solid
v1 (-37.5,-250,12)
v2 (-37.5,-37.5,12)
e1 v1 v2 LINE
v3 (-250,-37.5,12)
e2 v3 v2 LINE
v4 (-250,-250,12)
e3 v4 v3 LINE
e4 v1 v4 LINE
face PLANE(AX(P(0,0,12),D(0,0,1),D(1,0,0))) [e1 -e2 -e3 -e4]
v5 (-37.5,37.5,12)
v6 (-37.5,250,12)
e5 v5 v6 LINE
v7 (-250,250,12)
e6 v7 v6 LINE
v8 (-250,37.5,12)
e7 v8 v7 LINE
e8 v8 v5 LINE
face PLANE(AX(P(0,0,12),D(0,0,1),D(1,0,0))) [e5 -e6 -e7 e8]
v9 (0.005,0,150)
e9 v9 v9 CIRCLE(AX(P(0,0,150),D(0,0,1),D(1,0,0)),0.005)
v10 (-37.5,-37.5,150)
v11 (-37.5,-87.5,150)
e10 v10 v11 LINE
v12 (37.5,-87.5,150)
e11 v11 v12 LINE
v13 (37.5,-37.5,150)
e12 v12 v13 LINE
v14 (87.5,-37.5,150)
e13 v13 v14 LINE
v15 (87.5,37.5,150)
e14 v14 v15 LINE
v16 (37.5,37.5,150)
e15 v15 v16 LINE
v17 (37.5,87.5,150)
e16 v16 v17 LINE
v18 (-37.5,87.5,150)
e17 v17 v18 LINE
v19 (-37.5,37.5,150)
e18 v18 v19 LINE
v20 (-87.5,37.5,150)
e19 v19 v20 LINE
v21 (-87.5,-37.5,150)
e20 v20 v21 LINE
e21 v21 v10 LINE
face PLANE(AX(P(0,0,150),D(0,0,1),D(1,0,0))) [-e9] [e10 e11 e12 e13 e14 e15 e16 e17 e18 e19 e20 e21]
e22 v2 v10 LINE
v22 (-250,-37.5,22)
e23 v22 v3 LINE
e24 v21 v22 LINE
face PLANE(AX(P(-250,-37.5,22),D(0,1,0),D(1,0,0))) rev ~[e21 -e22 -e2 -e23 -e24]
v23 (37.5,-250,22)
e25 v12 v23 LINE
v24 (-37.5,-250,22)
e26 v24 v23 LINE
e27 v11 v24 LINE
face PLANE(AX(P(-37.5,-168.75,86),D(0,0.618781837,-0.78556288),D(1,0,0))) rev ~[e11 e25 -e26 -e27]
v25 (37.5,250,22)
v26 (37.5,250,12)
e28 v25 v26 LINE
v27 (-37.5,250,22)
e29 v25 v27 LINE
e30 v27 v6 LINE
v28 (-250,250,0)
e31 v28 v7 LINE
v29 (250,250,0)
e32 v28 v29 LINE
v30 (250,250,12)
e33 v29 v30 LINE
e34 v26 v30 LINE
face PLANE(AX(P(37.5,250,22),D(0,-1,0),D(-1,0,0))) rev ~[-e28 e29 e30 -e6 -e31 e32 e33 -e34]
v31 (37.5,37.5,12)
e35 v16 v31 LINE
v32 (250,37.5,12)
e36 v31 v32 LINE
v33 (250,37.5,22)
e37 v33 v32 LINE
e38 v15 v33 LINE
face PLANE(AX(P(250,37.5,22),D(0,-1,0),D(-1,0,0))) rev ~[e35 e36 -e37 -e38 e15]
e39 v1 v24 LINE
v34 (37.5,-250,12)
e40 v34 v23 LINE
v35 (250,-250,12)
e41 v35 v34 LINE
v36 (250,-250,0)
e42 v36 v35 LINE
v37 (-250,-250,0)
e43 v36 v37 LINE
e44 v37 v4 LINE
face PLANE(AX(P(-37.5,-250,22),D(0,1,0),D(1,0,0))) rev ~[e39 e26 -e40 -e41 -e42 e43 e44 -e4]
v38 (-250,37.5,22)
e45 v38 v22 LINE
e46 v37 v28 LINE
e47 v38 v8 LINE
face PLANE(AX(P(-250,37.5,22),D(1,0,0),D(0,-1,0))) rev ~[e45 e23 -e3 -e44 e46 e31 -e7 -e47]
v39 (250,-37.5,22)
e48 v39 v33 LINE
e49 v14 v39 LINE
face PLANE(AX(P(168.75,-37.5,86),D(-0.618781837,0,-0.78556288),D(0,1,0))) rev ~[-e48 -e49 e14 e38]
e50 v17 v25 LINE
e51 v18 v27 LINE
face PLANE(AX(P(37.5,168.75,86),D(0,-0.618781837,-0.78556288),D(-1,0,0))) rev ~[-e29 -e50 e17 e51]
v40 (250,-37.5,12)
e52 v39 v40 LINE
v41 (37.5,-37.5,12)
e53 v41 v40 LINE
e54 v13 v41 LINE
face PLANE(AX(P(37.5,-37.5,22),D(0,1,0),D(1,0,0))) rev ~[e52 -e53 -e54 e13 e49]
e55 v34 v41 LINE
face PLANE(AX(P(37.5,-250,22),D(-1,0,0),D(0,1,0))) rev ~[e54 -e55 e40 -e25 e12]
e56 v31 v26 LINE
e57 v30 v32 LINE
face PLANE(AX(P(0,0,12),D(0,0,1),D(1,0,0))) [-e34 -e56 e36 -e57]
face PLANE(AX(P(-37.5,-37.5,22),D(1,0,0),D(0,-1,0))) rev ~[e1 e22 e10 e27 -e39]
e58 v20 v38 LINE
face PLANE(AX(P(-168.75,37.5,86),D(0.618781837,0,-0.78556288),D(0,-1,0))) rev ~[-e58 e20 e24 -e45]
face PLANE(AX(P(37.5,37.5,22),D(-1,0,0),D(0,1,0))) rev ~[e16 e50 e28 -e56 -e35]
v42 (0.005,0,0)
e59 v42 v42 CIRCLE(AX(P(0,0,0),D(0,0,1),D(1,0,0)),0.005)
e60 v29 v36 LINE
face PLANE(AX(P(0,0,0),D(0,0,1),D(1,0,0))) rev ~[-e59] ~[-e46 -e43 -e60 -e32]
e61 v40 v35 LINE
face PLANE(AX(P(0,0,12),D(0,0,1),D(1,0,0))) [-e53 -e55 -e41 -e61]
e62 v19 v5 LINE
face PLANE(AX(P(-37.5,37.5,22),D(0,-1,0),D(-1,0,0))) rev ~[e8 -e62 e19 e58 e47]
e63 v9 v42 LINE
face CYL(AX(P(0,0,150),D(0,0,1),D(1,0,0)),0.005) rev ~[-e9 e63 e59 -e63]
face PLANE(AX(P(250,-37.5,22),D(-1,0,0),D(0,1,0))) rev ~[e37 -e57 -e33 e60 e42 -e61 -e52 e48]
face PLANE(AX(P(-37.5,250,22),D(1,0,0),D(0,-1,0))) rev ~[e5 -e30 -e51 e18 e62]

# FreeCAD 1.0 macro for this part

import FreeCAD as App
import Part
import Sketcher

V = App.Vector


def edges_at(feature, points):
    """Names of the edges that pass closest to the given points."""
    edges = feature.Shape.Edges
    near = lambda p: min(range(len(edges)), key=lambda i: edges[i].distToShape(Part.Vertex(*p))[0])
    return sorted({f"Edge{near(p) + 1}" for p in points})


def add_polygon(sketch, points):
    """Adds a closed chain of lines whose ends are joined by coincident constraints."""
    first, n = sketch.GeometryCount, len(points)
    for a, b in zip(points, points[1:] + points[:1]):
        sketch.addGeometry(Part.LineSegment(App.Vector(*a, 0), App.Vector(*b, 0)), False)
    for i in range(n):
        sketch.addConstraint(Sketcher.Constraint("Coincident", first + i, 2, first + (i + 1) % n, 1))

doc = App.newDocument("Part")
params = doc.addObject("Spreadsheet::Sheet", "Params")
for row, (alias, value) in enumerate([
    ("sketch1_width", "500 mm"),
    ("pad1_length", "12 mm"),
    ("sketch2_width", "75 mm"),
    ("sketch2_width2", "212.5 mm"),
    ("pad2_length", "10 mm"),
    ("sketch3_width", "75 mm"),
    ("sketch3_width2", "212.5 mm"),
    ("pad3_length", "128 mm"),
    ("chamfer_size", "162.5 mm"),
    ("chamfer_size2", "128 mm"),
    ("chamfer2_size", "162.5 mm"),
    ("chamfer2_size2", "128 mm"),
    ("chamfer3_size", "162.5 mm"),
    ("chamfer3_size2", "128 mm"),
    ("chamfer4_size", "162.5 mm"),
    ("chamfer4_size2", "128 mm"),
    ("sketch4_diameter", "0.01 mm"),
], start=1):
    params.set(f"A{row}", alias)
    params.set(f"B{row}", "=" + value)
    params.setAlias(f"B{row}", alias)

body = doc.addObject("PartDesign::Body", "Body")

# Sketch on XY plane
sketch1 = doc.addObject("Sketcher::SketchObject", "Sketch")
body.addObject(sketch1)
sketch1.AttachmentSupport = (doc.XY_Plane, [""])
sketch1.MapMode = "FlatFace"
add_polygon(sketch1, [(250, -250), (250, 250), (-250, 250), (-250, -250)])  # lines 0-3
sketch1.addConstraint(Sketcher.Constraint("Vertical", 0))
sketch1.addConstraint(Sketcher.Constraint("Horizontal", 1))
sketch1.addConstraint(Sketcher.Constraint("Vertical", 2))
sketch1.addConstraint(Sketcher.Constraint("Horizontal", 3))
sketch1.addConstraint(Sketcher.Constraint("Symmetric", 0, 2, 2, 2, -1, 1))
sketch1.addConstraint(Sketcher.Constraint("Equal", 3, 0))
sketch1.addConstraint(Sketcher.Constraint("DistanceX", 1, 2, 1, 1, 500.0))
sketch1.setExpression("Constraints[10]", "Params.sketch1_width")
pad1 = doc.addObject("PartDesign::Pad", "Pad")
body.addObject(pad1)
pad1.Profile = sketch1
pad1.setExpression("Length", "Params.pad1_length")

# Sketch on XY plane
sketch2 = doc.addObject("Sketcher::SketchObject", "Sketch001")
body.addObject(sketch2)
sketch2.AttachmentSupport = (doc.XY_Plane, [""])
sketch2.MapMode = "FlatFace"
sketch2.AttachmentOffset = App.Placement(V(0, 0, 12), App.Rotation())
add_polygon(sketch2, [(38, -38), (250, -38), (250, 38), (38, 38), (38, 250), (-38, 250), (-38, 38), (-250, 38), (-250, -38), (-38, -38), (-38, -250), (38, -250)])  # lines 0-11
sketch2.addConstraint(Sketcher.Constraint("Horizontal", 0))
sketch2.addConstraint(Sketcher.Constraint("Vertical", 1))
sketch2.addConstraint(Sketcher.Constraint("Horizontal", 2))
sketch2.addConstraint(Sketcher.Constraint("Vertical", 3))
sketch2.addConstraint(Sketcher.Constraint("Horizontal", 4))
sketch2.addConstraint(Sketcher.Constraint("Vertical", 5))
sketch2.addConstraint(Sketcher.Constraint("Horizontal", 6))
sketch2.addConstraint(Sketcher.Constraint("Vertical", 7))
sketch2.addConstraint(Sketcher.Constraint("Horizontal", 8))
sketch2.addConstraint(Sketcher.Constraint("Vertical", 9))
sketch2.addConstraint(Sketcher.Constraint("Horizontal", 10))
sketch2.addConstraint(Sketcher.Constraint("Vertical", 11))
sketch2.addConstraint(Sketcher.Constraint("Symmetric", 0, 2, 6, 2, -1, 1))
sketch2.addConstraint(Sketcher.Constraint("Symmetric", 2, 2, 8, 2, -1, 1))
sketch2.addConstraint(Sketcher.Constraint("Symmetric", 4, 2, 10, 2, -1, 1))
sketch2.addConstraint(Sketcher.Constraint("Symmetric", 2, 2, 5, 2, -2))
sketch2.addConstraint(Sketcher.Constraint("Equal", 10, 1))
sketch2.addConstraint(Sketcher.Constraint("Equal", 8, 3))
sketch2.addConstraint(Sketcher.Constraint("DistanceX", 4, 2, 4, 1, 75.0))
sketch2.addConstraint(Sketcher.Constraint("DistanceX", 0, 1, 0, 2, 212.5))
sketch2.setExpression("Constraints[30]", "Params.sketch2_width")
sketch2.setExpression("Constraints[31]", "Params.sketch2_width2")
pad2 = doc.addObject("PartDesign::Pad", "Pad001")
body.addObject(pad2)
pad2.Profile = sketch2
pad2.setExpression("Length", "Params.pad2_length")

# Sketch on XY plane
sketch3 = doc.addObject("Sketcher::SketchObject", "Sketch002")
body.addObject(sketch3)
sketch3.AttachmentSupport = (doc.XY_Plane, [""])
sketch3.MapMode = "FlatFace"
sketch3.AttachmentOffset = App.Placement(V(0, 0, 22), App.Rotation())
add_polygon(sketch3, [(-250, -38), (-38, -38), (-38, -250), (38, -250), (38, -38), (250, -38), (250, 38), (38, 38), (38, 250), (-38, 250), (-38, 38), (-250, 38)])  # lines 0-11
sketch3.addConstraint(Sketcher.Constraint("Horizontal", 0))
sketch3.addConstraint(Sketcher.Constraint("Vertical", 1))
sketch3.addConstraint(Sketcher.Constraint("Horizontal", 2))
sketch3.addConstraint(Sketcher.Constraint("Vertical", 3))
sketch3.addConstraint(Sketcher.Constraint("Horizontal", 4))
sketch3.addConstraint(Sketcher.Constraint("Vertical", 5))
sketch3.addConstraint(Sketcher.Constraint("Horizontal", 6))
sketch3.addConstraint(Sketcher.Constraint("Vertical", 7))
sketch3.addConstraint(Sketcher.Constraint("Horizontal", 8))
sketch3.addConstraint(Sketcher.Constraint("Vertical", 9))
sketch3.addConstraint(Sketcher.Constraint("Horizontal", 10))
sketch3.addConstraint(Sketcher.Constraint("Vertical", 11))
sketch3.addConstraint(Sketcher.Constraint("Symmetric", 0, 2, 6, 2, -1, 1))
sketch3.addConstraint(Sketcher.Constraint("Symmetric", 2, 2, 8, 2, -1, 1))
sketch3.addConstraint(Sketcher.Constraint("Symmetric", 4, 2, 10, 2, -1, 1))
sketch3.addConstraint(Sketcher.Constraint("Symmetric", 0, 2, 3, 2, -2))
sketch3.addConstraint(Sketcher.Constraint("Equal", 10, 1))
sketch3.addConstraint(Sketcher.Constraint("Equal", 8, 5))
sketch3.addConstraint(Sketcher.Constraint("DistanceX", 2, 1, 2, 2, 75.0))
sketch3.addConstraint(Sketcher.Constraint("DistanceX", 0, 1, 0, 2, 212.5))
sketch3.setExpression("Constraints[30]", "Params.sketch3_width")
sketch3.setExpression("Constraints[31]", "Params.sketch3_width2")
pad3 = doc.addObject("PartDesign::Pad", "Pad002")
body.addObject(pad3)
pad3.Profile = sketch3
pad3.setExpression("Length", "Params.pad3_length")
doc.recompute()

chamfer = doc.addObject("PartDesign::Chamfer", "Chamfer")
body.addObject(chamfer)
chamfer.Base = (pad3, edges_at(pad3, [(-250, 0, 150)]))
chamfer.ChamferType = "Two distances"
chamfer.setExpression("Size", "Params.chamfer_size")
chamfer.setExpression("Size2", "Params.chamfer_size2")
doc.recompute()

chamfer2 = doc.addObject("PartDesign::Chamfer", "Chamfer001")
body.addObject(chamfer2)
chamfer2.Base = (chamfer, edges_at(chamfer, [(0, -250, 150)]))
chamfer2.ChamferType = "Two distances"
chamfer2.setExpression("Size", "Params.chamfer2_size")
chamfer2.setExpression("Size2", "Params.chamfer2_size2")
doc.recompute()

chamfer3 = doc.addObject("PartDesign::Chamfer", "Chamfer002")
body.addObject(chamfer3)
chamfer3.Base = (chamfer2, edges_at(chamfer2, [(0, 250, 150)]))
chamfer3.ChamferType = "Two distances"
chamfer3.setExpression("Size", "Params.chamfer3_size")
chamfer3.setExpression("Size2", "Params.chamfer3_size2")
doc.recompute()

chamfer4 = doc.addObject("PartDesign::Chamfer", "Chamfer003")
body.addObject(chamfer4)
chamfer4.Base = (chamfer3, edges_at(chamfer3, [(250, 0, 150)]))
chamfer4.ChamferType = "Two distances"
chamfer4.setExpression("Size", "Params.chamfer4_size")
chamfer4.setExpression("Size2", "Params.chamfer4_size2")

# Sketch on XY plane
sketch4 = doc.addObject("Sketcher::SketchObject", "Sketch003")
body.addObject(sketch4)
sketch4.AttachmentSupport = (doc.XY_Plane, [""])
sketch4.MapMode = "FlatFace"
sketch4.AttachmentOffset = App.Placement(V(0, 0, 150), App.Rotation())
sketch4.addGeometry(Part.Circle(V(0, 0, 0), V(0, 0, 1), 0.005), False)
sketch4.addConstraint(Sketcher.Constraint("Coincident", 0, 3, -1, 1))
sketch4.addConstraint(Sketcher.Constraint("Diameter", 0, 0.01))
sketch4.setExpression("Constraints[1]", "Params.sketch4_diameter")
pocket1 = doc.addObject("PartDesign::Pocket", "Pocket")
body.addObject(pocket1)
pocket1.Profile = sketch4
pocket1.Type = "ThroughAll"

doc.recompute()
